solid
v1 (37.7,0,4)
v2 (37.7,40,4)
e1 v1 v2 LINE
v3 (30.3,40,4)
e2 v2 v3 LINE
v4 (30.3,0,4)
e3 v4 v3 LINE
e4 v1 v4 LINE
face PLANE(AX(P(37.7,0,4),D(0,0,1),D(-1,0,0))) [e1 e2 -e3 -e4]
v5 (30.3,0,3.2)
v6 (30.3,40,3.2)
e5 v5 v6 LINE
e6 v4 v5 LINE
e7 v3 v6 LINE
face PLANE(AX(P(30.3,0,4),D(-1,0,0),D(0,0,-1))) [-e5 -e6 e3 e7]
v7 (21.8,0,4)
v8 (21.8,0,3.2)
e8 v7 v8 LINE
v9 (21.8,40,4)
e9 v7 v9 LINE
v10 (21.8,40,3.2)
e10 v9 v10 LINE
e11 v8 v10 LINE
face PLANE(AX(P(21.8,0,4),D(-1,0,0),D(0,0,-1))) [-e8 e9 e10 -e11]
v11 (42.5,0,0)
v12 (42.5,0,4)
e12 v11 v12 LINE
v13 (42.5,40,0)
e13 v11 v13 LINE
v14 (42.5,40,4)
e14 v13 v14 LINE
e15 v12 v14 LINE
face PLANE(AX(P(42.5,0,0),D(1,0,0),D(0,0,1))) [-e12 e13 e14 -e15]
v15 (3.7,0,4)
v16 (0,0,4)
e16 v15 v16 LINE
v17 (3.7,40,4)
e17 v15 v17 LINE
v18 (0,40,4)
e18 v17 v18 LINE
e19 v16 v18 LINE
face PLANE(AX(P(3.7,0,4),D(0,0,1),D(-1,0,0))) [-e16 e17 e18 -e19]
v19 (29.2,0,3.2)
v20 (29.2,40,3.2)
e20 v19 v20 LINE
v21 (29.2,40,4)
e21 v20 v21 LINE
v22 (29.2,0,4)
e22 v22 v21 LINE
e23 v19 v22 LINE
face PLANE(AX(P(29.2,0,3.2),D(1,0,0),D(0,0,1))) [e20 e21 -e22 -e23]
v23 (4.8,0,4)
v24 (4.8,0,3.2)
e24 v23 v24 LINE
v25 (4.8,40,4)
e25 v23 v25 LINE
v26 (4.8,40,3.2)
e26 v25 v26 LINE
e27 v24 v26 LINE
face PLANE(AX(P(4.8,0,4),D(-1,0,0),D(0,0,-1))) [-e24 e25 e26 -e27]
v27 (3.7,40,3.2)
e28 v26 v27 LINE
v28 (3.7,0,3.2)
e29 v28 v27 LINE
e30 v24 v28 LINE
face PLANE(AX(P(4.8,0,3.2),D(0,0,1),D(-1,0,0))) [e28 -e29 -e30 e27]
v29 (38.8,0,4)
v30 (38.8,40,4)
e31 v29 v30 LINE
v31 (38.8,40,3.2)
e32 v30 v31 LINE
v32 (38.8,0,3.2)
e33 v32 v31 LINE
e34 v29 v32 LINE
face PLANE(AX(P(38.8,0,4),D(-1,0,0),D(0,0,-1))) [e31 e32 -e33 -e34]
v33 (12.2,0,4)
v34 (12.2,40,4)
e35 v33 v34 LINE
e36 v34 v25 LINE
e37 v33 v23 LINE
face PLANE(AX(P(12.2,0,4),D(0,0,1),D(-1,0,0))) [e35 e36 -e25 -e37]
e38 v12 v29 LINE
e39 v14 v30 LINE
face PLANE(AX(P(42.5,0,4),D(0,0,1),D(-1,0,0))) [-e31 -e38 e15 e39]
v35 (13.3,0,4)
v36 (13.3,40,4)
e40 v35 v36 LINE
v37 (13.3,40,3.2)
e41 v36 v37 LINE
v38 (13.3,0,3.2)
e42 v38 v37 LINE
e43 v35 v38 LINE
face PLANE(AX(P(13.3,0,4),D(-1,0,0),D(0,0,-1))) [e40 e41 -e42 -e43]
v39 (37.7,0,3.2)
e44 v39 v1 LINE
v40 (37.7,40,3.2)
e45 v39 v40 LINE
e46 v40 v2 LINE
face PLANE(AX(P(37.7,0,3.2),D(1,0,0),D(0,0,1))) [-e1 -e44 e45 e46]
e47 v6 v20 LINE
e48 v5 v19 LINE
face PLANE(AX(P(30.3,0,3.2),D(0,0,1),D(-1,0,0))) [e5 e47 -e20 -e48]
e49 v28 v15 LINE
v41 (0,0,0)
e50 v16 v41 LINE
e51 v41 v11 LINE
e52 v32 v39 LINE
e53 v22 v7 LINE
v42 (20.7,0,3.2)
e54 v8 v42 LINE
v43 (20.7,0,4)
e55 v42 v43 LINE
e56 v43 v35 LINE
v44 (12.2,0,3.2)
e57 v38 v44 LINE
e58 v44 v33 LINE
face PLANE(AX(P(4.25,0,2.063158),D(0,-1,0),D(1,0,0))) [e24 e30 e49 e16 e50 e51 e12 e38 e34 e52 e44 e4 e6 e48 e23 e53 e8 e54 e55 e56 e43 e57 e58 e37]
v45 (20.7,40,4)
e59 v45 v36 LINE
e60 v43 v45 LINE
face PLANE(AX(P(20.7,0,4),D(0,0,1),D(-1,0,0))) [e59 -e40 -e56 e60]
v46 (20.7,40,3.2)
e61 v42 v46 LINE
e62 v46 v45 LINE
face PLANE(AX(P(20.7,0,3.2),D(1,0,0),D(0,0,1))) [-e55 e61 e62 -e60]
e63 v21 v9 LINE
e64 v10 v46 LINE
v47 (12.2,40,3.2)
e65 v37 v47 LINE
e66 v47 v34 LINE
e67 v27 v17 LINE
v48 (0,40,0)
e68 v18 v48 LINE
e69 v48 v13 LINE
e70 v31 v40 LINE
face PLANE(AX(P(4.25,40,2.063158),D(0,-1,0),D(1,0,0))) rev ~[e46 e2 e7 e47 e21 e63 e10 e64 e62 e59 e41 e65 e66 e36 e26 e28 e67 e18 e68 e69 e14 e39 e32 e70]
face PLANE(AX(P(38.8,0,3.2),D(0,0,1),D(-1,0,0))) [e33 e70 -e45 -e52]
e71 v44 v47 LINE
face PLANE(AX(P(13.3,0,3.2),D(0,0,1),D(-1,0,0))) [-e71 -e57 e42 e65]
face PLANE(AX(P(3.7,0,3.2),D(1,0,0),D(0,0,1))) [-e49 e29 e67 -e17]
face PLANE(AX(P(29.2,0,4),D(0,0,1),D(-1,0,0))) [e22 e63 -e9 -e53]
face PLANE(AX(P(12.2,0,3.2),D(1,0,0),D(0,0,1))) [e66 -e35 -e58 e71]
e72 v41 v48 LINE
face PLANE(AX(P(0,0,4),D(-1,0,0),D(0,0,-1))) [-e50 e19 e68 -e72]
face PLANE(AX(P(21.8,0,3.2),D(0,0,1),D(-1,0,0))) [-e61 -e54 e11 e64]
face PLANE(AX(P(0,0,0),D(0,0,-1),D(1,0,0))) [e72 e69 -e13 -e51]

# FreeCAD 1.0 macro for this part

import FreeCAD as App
import Part
import Sketcher

doc = App.newDocument("Part")
body = doc.addObject("PartDesign::Body", "Body")

sketch1 = body.newObject("Sketcher::SketchObject", "Sketch")
sketch1.AttachmentSupport = (doc.getObject("XZ_Plane"), [""])
sketch1.MapMode = "FlatFace"
sketch1.addGeometry([
    Part.LineSegment(App.Vector(0, 4, 0), App.Vector(0, 0, 0)),
    Part.LineSegment(App.Vector(0, 0, 0), App.Vector(42.5, 0, 0)),
    Part.LineSegment(App.Vector(42.5, 0, 0), App.Vector(42.5, 4, 0)),
    Part.LineSegment(App.Vector(42.5, 4, 0), App.Vector(38.8, 4, 0)),
    Part.LineSegment(App.Vector(38.8, 4, 0), App.Vector(38.8, 3.2, 0)),
    Part.LineSegment(App.Vector(38.8, 3.2, 0), App.Vector(37.7, 3.2, 0)),
    Part.LineSegment(App.Vector(37.7, 3.2, 0), App.Vector(37.7, 4, 0)),
    Part.LineSegment(App.Vector(37.7, 4, 0), App.Vector(30.3, 4, 0)),
    Part.LineSegment(App.Vector(30.3, 4, 0), App.Vector(30.3, 3.2, 0)),
    Part.LineSegment(App.Vector(30.3, 3.2, 0), App.Vector(29.2, 3.2, 0)),
    Part.LineSegment(App.Vector(29.2, 3.2, 0), App.Vector(29.2, 4, 0)),
    Part.LineSegment(App.Vector(29.2, 4, 0), App.Vector(21.8, 4, 0)),
    Part.LineSegment(App.Vector(21.8, 4, 0), App.Vector(21.8, 3.2, 0)),
    Part.LineSegment(App.Vector(21.8, 3.2, 0), App.Vector(20.7, 3.2, 0)),
    Part.LineSegment(App.Vector(20.7, 3.2, 0), App.Vector(20.7, 4, 0)),
    Part.LineSegment(App.Vector(20.7, 4, 0), App.Vector(13.3, 4, 0)),
    Part.LineSegment(App.Vector(13.3, 4, 0), App.Vector(13.3, 3.2, 0)),
    Part.LineSegment(App.Vector(13.3, 3.2, 0), App.Vector(12.2, 3.2, 0)),
    Part.LineSegment(App.Vector(12.2, 3.2, 0), App.Vector(12.2, 4, 0)),
    Part.LineSegment(App.Vector(12.2, 4, 0), App.Vector(4.8, 4, 0)),
    Part.LineSegment(App.Vector(4.8, 4, 0), App.Vector(4.8, 3.2, 0)),
    Part.LineSegment(App.Vector(4.8, 3.2, 0), App.Vector(3.7, 3.2, 0)),
    Part.LineSegment(App.Vector(3.7, 3.2, 0), App.Vector(3.7, 4, 0)),
    Part.LineSegment(App.Vector(3.7, 4, 0), App.Vector(0, 4, 0)),
], False)
sketch1.addConstraint([
    Sketcher.Constraint("Coincident", 0, 2, 1, 1),
    Sketcher.Constraint("Coincident", 1, 2, 2, 1),
    Sketcher.Constraint("Coincident", 2, 2, 3, 1),
    Sketcher.Constraint("Coincident", 3, 2, 4, 1),
    Sketcher.Constraint("Coincident", 4, 2, 5, 1),
    Sketcher.Constraint("Coincident", 5, 2, 6, 1),
    Sketcher.Constraint("Coincident", 6, 2, 7, 1),
    Sketcher.Constraint("Coincident", 7, 2, 8, 1),
    Sketcher.Constraint("Coincident", 8, 2, 9, 1),
    Sketcher.Constraint("Coincident", 9, 2, 10, 1),
    Sketcher.Constraint("Coincident", 10, 2, 11, 1),
    Sketcher.Constraint("Coincident", 11, 2, 12, 1),
    Sketcher.Constraint("Coincident", 12, 2, 13, 1),
    Sketcher.Constraint("Coincident", 13, 2, 14, 1),
    Sketcher.Constraint("Coincident", 14, 2, 15, 1),
    Sketcher.Constraint("Coincident", 15, 2, 16, 1),
    Sketcher.Constraint("Coincident", 16, 2, 17, 1),
    Sketcher.Constraint("Coincident", 17, 2, 18, 1),
    Sketcher.Constraint("Coincident", 18, 2, 19, 1),
    Sketcher.Constraint("Coincident", 19, 2, 20, 1),
    Sketcher.Constraint("Coincident", 20, 2, 21, 1),
    Sketcher.Constraint("Coincident", 21, 2, 22, 1),
    Sketcher.Constraint("Coincident", 22, 2, 23, 1),
    Sketcher.Constraint("Coincident", 23, 2, 0, 1),
    Sketcher.Constraint("Vertical", 0),
    Sketcher.Constraint("Horizontal", 1),
    Sketcher.Constraint("Vertical", 2),
    Sketcher.Constraint("Horizontal", 3),
    Sketcher.Constraint("Vertical", 4),
    Sketcher.Constraint("Horizontal", 5),
    Sketcher.Constraint("Vertical", 6),
    Sketcher.Constraint("Horizontal", 7),
    Sketcher.Constraint("Vertical", 8),
    Sketcher.Constraint("Horizontal", 9),
    Sketcher.Constraint("Vertical", 10),
    Sketcher.Constraint("Horizontal", 11),
    Sketcher.Constraint("Vertical", 12),
    Sketcher.Constraint("Horizontal", 13),
    Sketcher.Constraint("Vertical", 14),
    Sketcher.Constraint("Horizontal", 15),
    Sketcher.Constraint("Vertical", 16),
    Sketcher.Constraint("Horizontal", 17),
    Sketcher.Constraint("Vertical", 18),
    Sketcher.Constraint("Horizontal", 19),
    Sketcher.Constraint("Vertical", 20),
    Sketcher.Constraint("Horizontal", 21),
    Sketcher.Constraint("Vertical", 22),
    Sketcher.Constraint("Horizontal", 23),
    Sketcher.Constraint("Coincident", 0, 2, -1, 1),
    Sketcher.Constraint("Horizontal", 3, 2, 6, 2),
    Sketcher.Constraint("Horizontal", 5, 2, 8, 2),
    Sketcher.Constraint("Horizontal", 7, 2, 10, 2),
    Sketcher.Constraint("Horizontal", 9, 2, 12, 2),
    Sketcher.Constraint("Horizontal", 11, 2, 14, 2),
    Sketcher.Constraint("Horizontal", 13, 2, 16, 2),
    Sketcher.Constraint("Horizontal", 15, 2, 18, 2),
    Sketcher.Constraint("Horizontal", 17, 2, 20, 2),
    Sketcher.Constraint("Horizontal", 19, 2, 22, 2),
    Sketcher.Constraint("Equal", 5, 9),
    Sketcher.Constraint("Equal", 7, 11),
    Sketcher.Constraint("Equal", 9, 13),
    Sketcher.Constraint("Equal", 11, 15),
    Sketcher.Constraint("Equal", 13, 17),
    Sketcher.Constraint("Equal", 15, 19),
    Sketcher.Constraint("Equal", 17, 21),
    Sketcher.Constraint("Equal", 3, 23),
    Sketcher.Constraint("DistanceY", 0, 2, 0, 1, 4.0),
    Sketcher.Constraint("DistanceX", 1, 1, 1, 2, 42.5),
    Sketcher.Constraint("DistanceX", 3, 2, 3, 1, 3.7),
    Sketcher.Constraint("DistanceX", 5, 2, 5, 1, 1.1),
    Sketcher.Constraint("DistanceY", 4, 2, 4, 1, 0.8),
])
pad1 = body.newObject("PartDesign::Pad", "Pad")
pad1.Profile = sketch1
pad1.Length = 40
pad1.Reversed = True

doc.recompute()
